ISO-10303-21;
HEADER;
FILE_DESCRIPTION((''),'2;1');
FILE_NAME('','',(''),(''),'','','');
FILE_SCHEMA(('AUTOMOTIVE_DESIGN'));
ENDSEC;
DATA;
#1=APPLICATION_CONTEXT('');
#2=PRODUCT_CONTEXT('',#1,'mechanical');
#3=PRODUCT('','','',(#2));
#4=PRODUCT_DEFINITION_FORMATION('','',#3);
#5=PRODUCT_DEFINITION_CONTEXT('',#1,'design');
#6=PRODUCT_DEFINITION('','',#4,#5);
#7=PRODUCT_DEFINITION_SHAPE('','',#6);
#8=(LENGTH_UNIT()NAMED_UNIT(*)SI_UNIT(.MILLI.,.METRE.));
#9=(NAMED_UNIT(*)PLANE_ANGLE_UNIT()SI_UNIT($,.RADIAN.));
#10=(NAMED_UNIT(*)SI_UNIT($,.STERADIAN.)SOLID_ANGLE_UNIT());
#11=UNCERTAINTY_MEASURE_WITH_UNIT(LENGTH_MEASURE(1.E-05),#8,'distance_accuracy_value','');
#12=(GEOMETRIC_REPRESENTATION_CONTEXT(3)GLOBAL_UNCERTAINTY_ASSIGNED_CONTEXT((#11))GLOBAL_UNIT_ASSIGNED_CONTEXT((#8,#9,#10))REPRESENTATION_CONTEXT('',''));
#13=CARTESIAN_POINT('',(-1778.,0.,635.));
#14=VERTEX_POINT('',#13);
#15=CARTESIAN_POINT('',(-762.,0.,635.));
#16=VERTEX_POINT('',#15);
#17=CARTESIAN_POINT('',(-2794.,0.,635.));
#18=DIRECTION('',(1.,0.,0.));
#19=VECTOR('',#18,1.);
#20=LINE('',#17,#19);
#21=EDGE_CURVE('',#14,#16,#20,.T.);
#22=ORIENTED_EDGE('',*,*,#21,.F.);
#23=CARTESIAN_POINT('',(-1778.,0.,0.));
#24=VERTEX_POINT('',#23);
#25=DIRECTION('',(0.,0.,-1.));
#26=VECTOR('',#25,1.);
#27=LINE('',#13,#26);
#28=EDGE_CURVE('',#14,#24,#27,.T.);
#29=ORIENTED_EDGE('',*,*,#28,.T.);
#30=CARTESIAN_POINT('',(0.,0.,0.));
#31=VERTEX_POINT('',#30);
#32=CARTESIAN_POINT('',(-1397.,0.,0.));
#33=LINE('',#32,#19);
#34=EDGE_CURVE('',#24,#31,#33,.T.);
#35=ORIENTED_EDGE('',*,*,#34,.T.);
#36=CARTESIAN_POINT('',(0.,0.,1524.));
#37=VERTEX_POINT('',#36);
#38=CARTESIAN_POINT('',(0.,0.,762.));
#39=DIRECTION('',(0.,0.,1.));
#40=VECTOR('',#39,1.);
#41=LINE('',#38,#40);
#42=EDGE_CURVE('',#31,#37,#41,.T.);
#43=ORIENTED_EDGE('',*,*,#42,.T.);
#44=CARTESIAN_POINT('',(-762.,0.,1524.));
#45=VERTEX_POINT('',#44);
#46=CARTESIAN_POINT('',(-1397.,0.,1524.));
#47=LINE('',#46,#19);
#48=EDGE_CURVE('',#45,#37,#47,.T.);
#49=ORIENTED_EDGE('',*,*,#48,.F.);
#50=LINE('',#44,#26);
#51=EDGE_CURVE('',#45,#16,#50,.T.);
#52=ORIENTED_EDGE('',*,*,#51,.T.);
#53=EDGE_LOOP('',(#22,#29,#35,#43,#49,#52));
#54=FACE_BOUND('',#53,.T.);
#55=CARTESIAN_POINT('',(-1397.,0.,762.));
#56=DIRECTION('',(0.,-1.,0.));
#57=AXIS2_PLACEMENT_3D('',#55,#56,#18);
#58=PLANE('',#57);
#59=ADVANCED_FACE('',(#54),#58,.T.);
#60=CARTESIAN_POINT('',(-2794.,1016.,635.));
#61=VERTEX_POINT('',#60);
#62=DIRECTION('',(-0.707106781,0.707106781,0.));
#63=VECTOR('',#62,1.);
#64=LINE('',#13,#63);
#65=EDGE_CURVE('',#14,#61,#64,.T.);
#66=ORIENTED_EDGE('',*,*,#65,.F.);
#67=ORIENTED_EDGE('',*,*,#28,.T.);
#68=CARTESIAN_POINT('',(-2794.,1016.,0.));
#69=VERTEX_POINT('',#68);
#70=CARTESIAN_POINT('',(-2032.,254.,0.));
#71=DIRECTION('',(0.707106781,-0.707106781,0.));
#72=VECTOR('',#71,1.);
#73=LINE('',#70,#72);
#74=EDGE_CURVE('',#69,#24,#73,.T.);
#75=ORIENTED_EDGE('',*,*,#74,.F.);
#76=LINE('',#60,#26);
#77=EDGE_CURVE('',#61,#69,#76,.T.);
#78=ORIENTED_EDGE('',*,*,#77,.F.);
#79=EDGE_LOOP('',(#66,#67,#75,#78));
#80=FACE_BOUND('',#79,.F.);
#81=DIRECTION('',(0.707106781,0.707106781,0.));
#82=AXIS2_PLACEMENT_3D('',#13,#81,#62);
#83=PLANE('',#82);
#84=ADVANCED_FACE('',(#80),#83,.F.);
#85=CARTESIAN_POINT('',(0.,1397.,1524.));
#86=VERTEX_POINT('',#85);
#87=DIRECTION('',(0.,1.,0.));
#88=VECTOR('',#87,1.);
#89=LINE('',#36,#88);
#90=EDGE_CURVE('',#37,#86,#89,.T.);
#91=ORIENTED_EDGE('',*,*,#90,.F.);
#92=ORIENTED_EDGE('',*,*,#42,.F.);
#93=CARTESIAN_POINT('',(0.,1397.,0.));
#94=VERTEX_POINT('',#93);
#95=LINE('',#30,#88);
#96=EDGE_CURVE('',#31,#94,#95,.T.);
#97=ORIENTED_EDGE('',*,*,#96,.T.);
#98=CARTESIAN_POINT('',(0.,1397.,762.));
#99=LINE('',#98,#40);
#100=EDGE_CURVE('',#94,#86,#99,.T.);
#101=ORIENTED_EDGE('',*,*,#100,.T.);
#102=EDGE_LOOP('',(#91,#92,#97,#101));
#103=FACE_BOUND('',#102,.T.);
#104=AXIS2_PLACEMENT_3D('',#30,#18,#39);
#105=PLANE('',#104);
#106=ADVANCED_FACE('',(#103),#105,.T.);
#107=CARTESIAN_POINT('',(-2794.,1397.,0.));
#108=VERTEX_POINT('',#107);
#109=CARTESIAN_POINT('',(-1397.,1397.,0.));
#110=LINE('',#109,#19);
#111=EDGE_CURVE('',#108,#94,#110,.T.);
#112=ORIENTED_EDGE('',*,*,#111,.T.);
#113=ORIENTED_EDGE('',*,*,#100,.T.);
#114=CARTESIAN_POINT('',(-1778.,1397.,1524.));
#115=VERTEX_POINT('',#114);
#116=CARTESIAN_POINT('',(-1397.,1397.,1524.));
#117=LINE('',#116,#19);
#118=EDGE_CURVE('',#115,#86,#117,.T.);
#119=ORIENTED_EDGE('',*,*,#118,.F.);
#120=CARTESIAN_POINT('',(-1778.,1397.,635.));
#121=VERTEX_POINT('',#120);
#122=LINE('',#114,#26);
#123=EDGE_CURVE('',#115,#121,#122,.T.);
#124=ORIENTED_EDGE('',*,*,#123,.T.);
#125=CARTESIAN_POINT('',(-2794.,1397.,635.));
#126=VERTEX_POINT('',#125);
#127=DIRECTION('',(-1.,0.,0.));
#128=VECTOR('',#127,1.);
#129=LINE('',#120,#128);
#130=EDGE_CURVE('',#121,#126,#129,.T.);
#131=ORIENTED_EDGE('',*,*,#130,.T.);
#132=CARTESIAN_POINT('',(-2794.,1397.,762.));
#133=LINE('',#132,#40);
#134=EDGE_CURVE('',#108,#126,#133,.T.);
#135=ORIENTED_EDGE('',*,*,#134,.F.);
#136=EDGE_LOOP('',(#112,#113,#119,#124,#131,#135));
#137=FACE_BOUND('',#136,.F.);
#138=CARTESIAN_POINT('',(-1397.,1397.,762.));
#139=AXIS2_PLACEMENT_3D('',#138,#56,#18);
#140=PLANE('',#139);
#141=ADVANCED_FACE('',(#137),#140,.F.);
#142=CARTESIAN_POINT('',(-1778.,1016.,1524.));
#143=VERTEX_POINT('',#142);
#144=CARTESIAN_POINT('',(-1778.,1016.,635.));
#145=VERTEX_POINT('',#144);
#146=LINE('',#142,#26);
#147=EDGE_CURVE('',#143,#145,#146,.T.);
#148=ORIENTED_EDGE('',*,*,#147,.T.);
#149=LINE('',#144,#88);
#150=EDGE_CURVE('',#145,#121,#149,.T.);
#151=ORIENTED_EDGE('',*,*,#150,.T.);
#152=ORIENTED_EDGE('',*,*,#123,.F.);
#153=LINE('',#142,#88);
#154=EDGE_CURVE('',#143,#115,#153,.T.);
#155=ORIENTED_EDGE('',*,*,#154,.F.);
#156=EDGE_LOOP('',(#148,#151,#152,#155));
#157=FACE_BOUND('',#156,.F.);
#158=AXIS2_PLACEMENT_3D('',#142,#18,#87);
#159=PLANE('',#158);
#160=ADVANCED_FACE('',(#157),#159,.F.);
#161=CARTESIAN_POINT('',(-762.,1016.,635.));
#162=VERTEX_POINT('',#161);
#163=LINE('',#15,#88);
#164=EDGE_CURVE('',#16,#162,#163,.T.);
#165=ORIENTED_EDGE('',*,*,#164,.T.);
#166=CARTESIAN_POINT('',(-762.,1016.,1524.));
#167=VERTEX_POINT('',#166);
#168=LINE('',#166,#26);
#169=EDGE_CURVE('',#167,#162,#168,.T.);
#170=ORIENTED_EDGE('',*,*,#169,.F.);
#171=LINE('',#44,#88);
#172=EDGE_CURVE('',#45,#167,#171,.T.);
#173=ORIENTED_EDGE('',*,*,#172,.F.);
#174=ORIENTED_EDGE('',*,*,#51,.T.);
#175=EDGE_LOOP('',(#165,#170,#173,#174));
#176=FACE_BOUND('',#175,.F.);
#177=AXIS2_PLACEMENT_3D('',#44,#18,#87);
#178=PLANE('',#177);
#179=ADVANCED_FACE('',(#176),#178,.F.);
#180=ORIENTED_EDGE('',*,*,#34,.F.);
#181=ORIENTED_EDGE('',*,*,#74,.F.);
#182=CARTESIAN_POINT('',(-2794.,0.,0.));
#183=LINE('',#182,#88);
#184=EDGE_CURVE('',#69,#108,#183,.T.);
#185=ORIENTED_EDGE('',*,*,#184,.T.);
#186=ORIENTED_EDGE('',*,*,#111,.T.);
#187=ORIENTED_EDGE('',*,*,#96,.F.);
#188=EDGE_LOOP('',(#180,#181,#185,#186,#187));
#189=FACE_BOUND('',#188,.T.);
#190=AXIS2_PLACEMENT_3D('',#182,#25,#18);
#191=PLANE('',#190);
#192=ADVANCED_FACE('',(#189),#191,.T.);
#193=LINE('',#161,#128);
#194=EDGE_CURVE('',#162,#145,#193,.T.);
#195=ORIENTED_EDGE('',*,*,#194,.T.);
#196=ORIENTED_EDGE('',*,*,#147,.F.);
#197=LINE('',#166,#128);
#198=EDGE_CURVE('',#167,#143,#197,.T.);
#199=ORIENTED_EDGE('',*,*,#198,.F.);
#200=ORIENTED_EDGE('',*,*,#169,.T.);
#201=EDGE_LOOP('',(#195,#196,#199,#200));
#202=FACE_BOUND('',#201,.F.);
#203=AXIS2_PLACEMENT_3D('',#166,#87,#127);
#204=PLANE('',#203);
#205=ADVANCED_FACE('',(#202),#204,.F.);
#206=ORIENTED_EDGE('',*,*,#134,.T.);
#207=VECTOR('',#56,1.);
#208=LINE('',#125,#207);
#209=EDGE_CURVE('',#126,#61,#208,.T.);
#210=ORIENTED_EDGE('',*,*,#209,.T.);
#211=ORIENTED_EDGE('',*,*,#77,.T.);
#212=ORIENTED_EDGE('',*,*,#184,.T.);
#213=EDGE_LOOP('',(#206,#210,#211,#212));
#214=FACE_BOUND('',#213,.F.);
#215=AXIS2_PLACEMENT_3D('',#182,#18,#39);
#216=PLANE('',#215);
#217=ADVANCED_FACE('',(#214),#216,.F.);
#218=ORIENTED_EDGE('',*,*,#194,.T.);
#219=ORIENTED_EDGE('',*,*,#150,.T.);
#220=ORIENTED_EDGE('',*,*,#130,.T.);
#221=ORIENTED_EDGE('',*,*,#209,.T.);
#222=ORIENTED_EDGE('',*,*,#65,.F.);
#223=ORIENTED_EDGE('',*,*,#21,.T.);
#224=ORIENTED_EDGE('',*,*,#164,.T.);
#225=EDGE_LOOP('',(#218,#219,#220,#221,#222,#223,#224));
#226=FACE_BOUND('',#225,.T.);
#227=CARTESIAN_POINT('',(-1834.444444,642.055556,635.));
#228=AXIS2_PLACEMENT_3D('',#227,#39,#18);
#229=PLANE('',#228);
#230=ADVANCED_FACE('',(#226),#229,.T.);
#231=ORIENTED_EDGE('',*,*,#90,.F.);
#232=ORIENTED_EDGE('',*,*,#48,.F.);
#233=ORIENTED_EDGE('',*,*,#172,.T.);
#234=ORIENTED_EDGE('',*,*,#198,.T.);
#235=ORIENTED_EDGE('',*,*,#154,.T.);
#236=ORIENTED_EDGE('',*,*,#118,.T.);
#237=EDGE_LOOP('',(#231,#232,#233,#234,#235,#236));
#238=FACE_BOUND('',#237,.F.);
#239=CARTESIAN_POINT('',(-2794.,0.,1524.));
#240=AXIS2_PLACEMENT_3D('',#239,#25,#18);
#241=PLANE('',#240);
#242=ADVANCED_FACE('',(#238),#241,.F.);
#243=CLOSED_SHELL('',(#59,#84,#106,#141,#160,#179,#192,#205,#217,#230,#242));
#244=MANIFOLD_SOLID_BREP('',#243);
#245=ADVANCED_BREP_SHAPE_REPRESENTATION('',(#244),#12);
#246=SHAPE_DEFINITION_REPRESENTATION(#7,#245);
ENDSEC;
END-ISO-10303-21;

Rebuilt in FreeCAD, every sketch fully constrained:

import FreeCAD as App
import Part
import Sketcher

V = App.Vector
Q = App.Units.Quantity

doc = App.newDocument("Part")
body = doc.addObject("PartDesign::Body", "Body")

sketch1 = body.newObject("Sketcher::SketchObject", "Sketch")
sketch1.AttachmentSupport = (doc.getObject("XZ_Plane"), [""])
sketch1.MapMode = "FlatFace"
sketch1.addGeometry(Part.LineSegment(V(-2794, 1524, 0), V(-2794, 0, 0)), False)
sketch1.addGeometry(Part.LineSegment(V(-2794, 0, 0), V(0, 0, 0)), False)
sketch1.addGeometry(Part.LineSegment(V(0, 0, 0), V(0, 1524, 0)), False)
sketch1.addGeometry(Part.LineSegment(V(0, 1524, 0), V(-2794, 1524, 0)), False)
sketch1.addConstraint(Sketcher.Constraint("Coincident", 0, 2, 1, 1))
sketch1.addConstraint(Sketcher.Constraint("Coincident", 1, 2, 2, 1))
sketch1.addConstraint(Sketcher.Constraint("Coincident", 2, 2, 3, 1))
sketch1.addConstraint(Sketcher.Constraint("Coincident", 3, 2, 0, 1))
sketch1.addConstraint(Sketcher.Constraint("Vertical", 0))
sketch1.addConstraint(Sketcher.Constraint("Horizontal", 1))
sketch1.addConstraint(Sketcher.Constraint("Vertical", 2))
sketch1.addConstraint(Sketcher.Constraint("Horizontal", 3))
sketch1.addConstraint(Sketcher.Constraint("Coincident", 1, 2, -1, 1))
sketch1.addConstraint(Sketcher.Constraint("DistanceX", 1, 1, 1, 2, Q("110 in")))
sketch1.addConstraint(Sketcher.Constraint("DistanceY", 0, 2, 0, 1, Q("60 in")))
pad1 = body.newObject("PartDesign::Pad", "Pad")
pad1.Profile = sketch1
pad1.Length = Q("55 in")
pad1.Reversed = True

sketch2 = body.newObject("Sketcher::SketchObject", "Sketch001")
sketch2.AttachmentSupport = (doc.getObject("XY_Plane"), [""])
sketch2.MapMode = "FlatFace"
sketch2.AttachmentOffset = App.Placement(V(0, 0, 60 * 25.4), App.Rotation())
sketch2.addGeometry(Part.LineSegment(V(-1778, 1016, 0), V(-1778, 1397, 0)), False)
sketch2.addGeometry(Part.LineSegment(V(-1778, 1397, 0), V(-2794, 1397, 0)), False)
sketch2.addGeometry(Part.LineSegment(V(-2794, 1397, 0), V(-2794, 0, 0)), False)
sketch2.addGeometry(Part.LineSegment(V(-2794, 0, 0), V(-762, 0, 0)), False)
sketch2.addGeometry(Part.LineSegment(V(-762, 0, 0), V(-762, 1016, 0)), False)
sketch2.addGeometry(Part.LineSegment(V(-762, 1016, 0), V(-1778, 1016, 0)), False)
sketch2.addConstraint(Sketcher.Constraint("Coincident", 0, 2, 1, 1))
sketch2.addConstraint(Sketcher.Constraint("Coincident", 1, 2, 2, 1))
sketch2.addConstraint(Sketcher.Constraint("Coincident", 2, 2, 3, 1))
sketch2.addConstraint(Sketcher.Constraint("Coincident", 3, 2, 4, 1))
sketch2.addConstraint(Sketcher.Constraint("Coincident", 4, 2, 5, 1))
sketch2.addConstraint(Sketcher.Constraint("Coincident", 5, 2, 0, 1))
sketch2.addConstraint(Sketcher.Constraint("Vertical", 0))
sketch2.addConstraint(Sketcher.Constraint("Horizontal", 1))
sketch2.addConstraint(Sketcher.Constraint("Vertical", 2))
sketch2.addConstraint(Sketcher.Constraint("Horizontal", 3))
sketch2.addConstraint(Sketcher.Constraint("Vertical", 4))
sketch2.addConstraint(Sketcher.Constraint("Horizontal", 5))
sketch2.addConstraint(Sketcher.Constraint("PointOnObject", 2, 2, -1))
sketch2.addConstraint(Sketcher.Constraint("Equal", 1, 5))
sketch2.addConstraint(Sketcher.Constraint("Equal", 5, 4))
sketch2.addConstraint(Sketcher.Constraint("DistanceX", 1, 2, 1, 1, Q("40 in")))
sketch2.addConstraint(Sketcher.Constraint("DistanceY", 0, 1, 0, 2, Q("15 in")))
sketch2.addConstraint(Sketcher.Constraint("DistanceX", 0, 2, -1, 1, Q("70 in")))
pocket1 = body.newObject("PartDesign::Pocket", "Pocket")
pocket1.Profile = sketch2
pocket1.Length = Q("35 in")

sketch3 = body.newObject("Sketcher::SketchObject", "Sketch002")
sketch3.AttachmentSupport = (doc.getObject("XY_Plane"), [""])
sketch3.MapMode = "FlatFace"
sketch3.AttachmentOffset = App.Placement(V(0, 0, 25 * 25.4), App.Rotation())
sketch3.addGeometry(Part.LineSegment(V(-1778, 0, 0), V(-2794, 1016, 0)), False)
sketch3.addGeometry(Part.LineSegment(V(-2794, 1016, 0), V(-2794, 0, 0)), False)
sketch3.addGeometry(Part.LineSegment(V(-2794, 0, 0), V(-1778, 0, 0)), False)
sketch3.addConstraint(Sketcher.Constraint("Coincident", 0, 2, 1, 1))
sketch3.addConstraint(Sketcher.Constraint("Coincident", 1, 2, 2, 1))
sketch3.addConstraint(Sketcher.Constraint("Coincident", 2, 2, 0, 1))
sketch3.addConstraint(Sketcher.Constraint("Vertical", 1))
sketch3.addConstraint(Sketcher.Constraint("Horizontal", 2))
sketch3.addConstraint(Sketcher.Constraint("PointOnObject", 1, 2, -1))
sketch3.addConstraint(Sketcher.Constraint("Equal", 2, 1))
sketch3.addConstraint(Sketcher.Constraint("DistanceX", 2, 1, 2, 2, Q("40 in")))
sketch3.addConstraint(Sketcher.Constraint("DistanceX", 0, 2, -1, 1, Q("110 in")))
pocket2 = body.newObject("PartDesign::Pocket", "Pocket001")
pocket2.Profile = sketch3
pocket2.Length = Q("50 in")

doc.recompute()
